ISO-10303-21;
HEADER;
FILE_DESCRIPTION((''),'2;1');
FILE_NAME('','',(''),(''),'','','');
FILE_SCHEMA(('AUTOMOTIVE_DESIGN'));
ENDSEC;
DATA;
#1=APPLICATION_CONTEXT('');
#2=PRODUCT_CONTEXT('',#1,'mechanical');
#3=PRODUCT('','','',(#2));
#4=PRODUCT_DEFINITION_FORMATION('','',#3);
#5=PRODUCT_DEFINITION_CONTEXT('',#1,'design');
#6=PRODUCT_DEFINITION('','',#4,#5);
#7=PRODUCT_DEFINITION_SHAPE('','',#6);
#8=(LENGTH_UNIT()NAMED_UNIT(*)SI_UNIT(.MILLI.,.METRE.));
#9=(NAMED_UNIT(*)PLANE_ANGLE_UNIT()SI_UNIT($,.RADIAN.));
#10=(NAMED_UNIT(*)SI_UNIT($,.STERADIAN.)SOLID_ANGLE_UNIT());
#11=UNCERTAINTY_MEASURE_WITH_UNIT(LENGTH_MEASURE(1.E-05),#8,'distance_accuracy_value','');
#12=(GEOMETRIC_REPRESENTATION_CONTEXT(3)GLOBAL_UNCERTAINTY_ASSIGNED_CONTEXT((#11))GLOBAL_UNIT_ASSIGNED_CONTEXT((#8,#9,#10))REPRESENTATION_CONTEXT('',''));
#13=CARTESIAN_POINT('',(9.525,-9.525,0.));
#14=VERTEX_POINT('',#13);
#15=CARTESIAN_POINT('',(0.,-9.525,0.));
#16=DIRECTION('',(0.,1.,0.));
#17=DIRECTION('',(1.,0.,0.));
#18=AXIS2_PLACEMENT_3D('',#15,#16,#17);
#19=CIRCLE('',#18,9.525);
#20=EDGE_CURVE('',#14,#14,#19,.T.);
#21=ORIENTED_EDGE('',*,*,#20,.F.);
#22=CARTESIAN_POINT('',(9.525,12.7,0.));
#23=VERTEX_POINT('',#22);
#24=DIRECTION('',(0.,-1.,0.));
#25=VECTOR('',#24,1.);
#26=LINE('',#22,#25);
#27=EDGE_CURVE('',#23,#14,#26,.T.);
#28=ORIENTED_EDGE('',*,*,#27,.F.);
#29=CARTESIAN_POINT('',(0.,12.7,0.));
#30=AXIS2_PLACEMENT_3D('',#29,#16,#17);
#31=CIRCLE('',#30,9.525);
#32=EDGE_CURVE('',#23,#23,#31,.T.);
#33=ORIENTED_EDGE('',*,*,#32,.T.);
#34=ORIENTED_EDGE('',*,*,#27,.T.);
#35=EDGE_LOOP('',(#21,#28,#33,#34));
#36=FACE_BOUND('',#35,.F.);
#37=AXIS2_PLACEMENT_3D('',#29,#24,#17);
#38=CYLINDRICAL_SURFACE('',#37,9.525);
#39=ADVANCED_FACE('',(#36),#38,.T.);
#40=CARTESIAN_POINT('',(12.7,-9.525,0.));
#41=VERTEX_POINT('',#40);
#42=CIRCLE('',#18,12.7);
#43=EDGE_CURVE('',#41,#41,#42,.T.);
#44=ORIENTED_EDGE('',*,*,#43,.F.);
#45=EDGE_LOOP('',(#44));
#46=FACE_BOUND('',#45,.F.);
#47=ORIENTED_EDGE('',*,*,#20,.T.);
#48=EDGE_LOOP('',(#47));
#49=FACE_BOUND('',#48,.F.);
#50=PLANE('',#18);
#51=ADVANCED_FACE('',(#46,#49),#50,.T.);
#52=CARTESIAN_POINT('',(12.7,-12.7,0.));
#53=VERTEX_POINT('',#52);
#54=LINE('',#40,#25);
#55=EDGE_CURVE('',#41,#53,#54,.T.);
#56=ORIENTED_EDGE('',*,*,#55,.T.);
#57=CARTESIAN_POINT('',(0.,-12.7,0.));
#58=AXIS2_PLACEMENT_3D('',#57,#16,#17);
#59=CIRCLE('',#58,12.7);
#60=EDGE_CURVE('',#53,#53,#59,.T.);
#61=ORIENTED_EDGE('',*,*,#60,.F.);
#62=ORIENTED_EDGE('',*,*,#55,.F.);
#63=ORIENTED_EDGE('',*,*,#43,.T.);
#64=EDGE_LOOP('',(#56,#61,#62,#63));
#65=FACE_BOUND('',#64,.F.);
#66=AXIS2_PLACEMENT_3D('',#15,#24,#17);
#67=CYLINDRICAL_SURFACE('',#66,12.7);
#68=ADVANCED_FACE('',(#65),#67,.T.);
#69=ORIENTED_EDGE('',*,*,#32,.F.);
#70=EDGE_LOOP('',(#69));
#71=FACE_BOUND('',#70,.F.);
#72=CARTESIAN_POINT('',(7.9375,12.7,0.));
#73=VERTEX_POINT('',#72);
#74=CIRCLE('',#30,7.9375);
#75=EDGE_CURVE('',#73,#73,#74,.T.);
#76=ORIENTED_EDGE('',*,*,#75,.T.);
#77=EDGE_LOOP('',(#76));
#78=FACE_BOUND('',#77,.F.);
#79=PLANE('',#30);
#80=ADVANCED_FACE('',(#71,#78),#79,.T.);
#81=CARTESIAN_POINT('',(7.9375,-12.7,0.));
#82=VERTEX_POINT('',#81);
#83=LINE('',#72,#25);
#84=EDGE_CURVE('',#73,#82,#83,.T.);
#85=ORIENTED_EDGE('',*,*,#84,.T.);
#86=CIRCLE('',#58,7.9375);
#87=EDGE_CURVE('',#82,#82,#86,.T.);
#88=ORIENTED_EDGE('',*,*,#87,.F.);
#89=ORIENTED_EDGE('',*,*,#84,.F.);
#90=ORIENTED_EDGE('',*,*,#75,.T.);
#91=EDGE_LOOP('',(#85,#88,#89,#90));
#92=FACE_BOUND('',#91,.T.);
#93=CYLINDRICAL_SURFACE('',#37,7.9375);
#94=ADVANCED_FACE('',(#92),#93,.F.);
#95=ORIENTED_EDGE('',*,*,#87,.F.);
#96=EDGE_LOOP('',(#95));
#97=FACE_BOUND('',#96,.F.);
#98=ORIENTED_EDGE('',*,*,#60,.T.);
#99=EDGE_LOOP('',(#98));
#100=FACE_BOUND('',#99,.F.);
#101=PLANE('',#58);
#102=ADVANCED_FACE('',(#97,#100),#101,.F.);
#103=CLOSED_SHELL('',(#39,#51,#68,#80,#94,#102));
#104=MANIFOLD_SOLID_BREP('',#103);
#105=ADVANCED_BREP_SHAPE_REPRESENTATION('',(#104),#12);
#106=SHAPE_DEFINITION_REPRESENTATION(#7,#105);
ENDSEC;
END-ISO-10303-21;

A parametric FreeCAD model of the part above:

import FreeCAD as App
import Part
import Sketcher

V = App.Vector
Q = App.Units.Quantity


def add_polygon(sketch, points):
    """Adds a closed chain of lines whose ends are joined by coincident constraints."""
    first, n = sketch.GeometryCount, len(points)
    for a, b in zip(points, points[1:] + points[:1]):
        sketch.addGeometry(Part.LineSegment(App.Vector(*a, 0), App.Vector(*b, 0)), False)
    for i in range(n):
        sketch.addConstraint(Sketcher.Constraint("Coincident", first + i, 2, first + (i + 1) % n, 1))

doc = App.newDocument("Part")
body = doc.addObject("PartDesign::Body", "Body")

sketch1 = doc.addObject("Sketcher::SketchObject", "Sketch")
body.addObject(sketch1)
sketch1.AttachmentSupport = (doc.XY_Plane, [""])
sketch1.MapMode = "FlatFace"
add_polygon(sketch1, [(9.5, 12.7), (7.9, 12.7), (7.9, -12.7), (12.7, -12.7), (12.7, -9.5), (9.5, -9.5)])
sketch1.addConstraint([
    Sketcher.Constraint("Horizontal", 0),
    Sketcher.Constraint("Vertical", 1),
    Sketcher.Constraint("Horizontal", 2),
    Sketcher.Constraint("Vertical", 3),
    Sketcher.Constraint("Horizontal", 4),
    Sketcher.Constraint("Vertical", 5),
    Sketcher.Constraint("Equal", 4, 3),
    Sketcher.Constraint("DistanceY", 1, 2, 1, 1, Q("1 in")),
    Sketcher.Constraint("DistanceX", 4, 2, 4, 1, Q("0.125 in")),
    Sketcher.Constraint("DistanceY", -1, 1, 0, 2, Q("0.5 in")),
    Sketcher.Constraint("DistanceX", -1, 1, 2, 2, Q("0.5 in")),
    Sketcher.Constraint("DistanceX", 0, 2, 0, 1, Q("0.0625 in")),
])
revolution = doc.addObject("PartDesign::Revolution", "Revolution")
body.addObject(revolution)
revolution.Profile = sketch1
revolution.ReferenceAxis = (sketch1, ["V_Axis"])
revolution.Angle = 360

doc.recompute()
